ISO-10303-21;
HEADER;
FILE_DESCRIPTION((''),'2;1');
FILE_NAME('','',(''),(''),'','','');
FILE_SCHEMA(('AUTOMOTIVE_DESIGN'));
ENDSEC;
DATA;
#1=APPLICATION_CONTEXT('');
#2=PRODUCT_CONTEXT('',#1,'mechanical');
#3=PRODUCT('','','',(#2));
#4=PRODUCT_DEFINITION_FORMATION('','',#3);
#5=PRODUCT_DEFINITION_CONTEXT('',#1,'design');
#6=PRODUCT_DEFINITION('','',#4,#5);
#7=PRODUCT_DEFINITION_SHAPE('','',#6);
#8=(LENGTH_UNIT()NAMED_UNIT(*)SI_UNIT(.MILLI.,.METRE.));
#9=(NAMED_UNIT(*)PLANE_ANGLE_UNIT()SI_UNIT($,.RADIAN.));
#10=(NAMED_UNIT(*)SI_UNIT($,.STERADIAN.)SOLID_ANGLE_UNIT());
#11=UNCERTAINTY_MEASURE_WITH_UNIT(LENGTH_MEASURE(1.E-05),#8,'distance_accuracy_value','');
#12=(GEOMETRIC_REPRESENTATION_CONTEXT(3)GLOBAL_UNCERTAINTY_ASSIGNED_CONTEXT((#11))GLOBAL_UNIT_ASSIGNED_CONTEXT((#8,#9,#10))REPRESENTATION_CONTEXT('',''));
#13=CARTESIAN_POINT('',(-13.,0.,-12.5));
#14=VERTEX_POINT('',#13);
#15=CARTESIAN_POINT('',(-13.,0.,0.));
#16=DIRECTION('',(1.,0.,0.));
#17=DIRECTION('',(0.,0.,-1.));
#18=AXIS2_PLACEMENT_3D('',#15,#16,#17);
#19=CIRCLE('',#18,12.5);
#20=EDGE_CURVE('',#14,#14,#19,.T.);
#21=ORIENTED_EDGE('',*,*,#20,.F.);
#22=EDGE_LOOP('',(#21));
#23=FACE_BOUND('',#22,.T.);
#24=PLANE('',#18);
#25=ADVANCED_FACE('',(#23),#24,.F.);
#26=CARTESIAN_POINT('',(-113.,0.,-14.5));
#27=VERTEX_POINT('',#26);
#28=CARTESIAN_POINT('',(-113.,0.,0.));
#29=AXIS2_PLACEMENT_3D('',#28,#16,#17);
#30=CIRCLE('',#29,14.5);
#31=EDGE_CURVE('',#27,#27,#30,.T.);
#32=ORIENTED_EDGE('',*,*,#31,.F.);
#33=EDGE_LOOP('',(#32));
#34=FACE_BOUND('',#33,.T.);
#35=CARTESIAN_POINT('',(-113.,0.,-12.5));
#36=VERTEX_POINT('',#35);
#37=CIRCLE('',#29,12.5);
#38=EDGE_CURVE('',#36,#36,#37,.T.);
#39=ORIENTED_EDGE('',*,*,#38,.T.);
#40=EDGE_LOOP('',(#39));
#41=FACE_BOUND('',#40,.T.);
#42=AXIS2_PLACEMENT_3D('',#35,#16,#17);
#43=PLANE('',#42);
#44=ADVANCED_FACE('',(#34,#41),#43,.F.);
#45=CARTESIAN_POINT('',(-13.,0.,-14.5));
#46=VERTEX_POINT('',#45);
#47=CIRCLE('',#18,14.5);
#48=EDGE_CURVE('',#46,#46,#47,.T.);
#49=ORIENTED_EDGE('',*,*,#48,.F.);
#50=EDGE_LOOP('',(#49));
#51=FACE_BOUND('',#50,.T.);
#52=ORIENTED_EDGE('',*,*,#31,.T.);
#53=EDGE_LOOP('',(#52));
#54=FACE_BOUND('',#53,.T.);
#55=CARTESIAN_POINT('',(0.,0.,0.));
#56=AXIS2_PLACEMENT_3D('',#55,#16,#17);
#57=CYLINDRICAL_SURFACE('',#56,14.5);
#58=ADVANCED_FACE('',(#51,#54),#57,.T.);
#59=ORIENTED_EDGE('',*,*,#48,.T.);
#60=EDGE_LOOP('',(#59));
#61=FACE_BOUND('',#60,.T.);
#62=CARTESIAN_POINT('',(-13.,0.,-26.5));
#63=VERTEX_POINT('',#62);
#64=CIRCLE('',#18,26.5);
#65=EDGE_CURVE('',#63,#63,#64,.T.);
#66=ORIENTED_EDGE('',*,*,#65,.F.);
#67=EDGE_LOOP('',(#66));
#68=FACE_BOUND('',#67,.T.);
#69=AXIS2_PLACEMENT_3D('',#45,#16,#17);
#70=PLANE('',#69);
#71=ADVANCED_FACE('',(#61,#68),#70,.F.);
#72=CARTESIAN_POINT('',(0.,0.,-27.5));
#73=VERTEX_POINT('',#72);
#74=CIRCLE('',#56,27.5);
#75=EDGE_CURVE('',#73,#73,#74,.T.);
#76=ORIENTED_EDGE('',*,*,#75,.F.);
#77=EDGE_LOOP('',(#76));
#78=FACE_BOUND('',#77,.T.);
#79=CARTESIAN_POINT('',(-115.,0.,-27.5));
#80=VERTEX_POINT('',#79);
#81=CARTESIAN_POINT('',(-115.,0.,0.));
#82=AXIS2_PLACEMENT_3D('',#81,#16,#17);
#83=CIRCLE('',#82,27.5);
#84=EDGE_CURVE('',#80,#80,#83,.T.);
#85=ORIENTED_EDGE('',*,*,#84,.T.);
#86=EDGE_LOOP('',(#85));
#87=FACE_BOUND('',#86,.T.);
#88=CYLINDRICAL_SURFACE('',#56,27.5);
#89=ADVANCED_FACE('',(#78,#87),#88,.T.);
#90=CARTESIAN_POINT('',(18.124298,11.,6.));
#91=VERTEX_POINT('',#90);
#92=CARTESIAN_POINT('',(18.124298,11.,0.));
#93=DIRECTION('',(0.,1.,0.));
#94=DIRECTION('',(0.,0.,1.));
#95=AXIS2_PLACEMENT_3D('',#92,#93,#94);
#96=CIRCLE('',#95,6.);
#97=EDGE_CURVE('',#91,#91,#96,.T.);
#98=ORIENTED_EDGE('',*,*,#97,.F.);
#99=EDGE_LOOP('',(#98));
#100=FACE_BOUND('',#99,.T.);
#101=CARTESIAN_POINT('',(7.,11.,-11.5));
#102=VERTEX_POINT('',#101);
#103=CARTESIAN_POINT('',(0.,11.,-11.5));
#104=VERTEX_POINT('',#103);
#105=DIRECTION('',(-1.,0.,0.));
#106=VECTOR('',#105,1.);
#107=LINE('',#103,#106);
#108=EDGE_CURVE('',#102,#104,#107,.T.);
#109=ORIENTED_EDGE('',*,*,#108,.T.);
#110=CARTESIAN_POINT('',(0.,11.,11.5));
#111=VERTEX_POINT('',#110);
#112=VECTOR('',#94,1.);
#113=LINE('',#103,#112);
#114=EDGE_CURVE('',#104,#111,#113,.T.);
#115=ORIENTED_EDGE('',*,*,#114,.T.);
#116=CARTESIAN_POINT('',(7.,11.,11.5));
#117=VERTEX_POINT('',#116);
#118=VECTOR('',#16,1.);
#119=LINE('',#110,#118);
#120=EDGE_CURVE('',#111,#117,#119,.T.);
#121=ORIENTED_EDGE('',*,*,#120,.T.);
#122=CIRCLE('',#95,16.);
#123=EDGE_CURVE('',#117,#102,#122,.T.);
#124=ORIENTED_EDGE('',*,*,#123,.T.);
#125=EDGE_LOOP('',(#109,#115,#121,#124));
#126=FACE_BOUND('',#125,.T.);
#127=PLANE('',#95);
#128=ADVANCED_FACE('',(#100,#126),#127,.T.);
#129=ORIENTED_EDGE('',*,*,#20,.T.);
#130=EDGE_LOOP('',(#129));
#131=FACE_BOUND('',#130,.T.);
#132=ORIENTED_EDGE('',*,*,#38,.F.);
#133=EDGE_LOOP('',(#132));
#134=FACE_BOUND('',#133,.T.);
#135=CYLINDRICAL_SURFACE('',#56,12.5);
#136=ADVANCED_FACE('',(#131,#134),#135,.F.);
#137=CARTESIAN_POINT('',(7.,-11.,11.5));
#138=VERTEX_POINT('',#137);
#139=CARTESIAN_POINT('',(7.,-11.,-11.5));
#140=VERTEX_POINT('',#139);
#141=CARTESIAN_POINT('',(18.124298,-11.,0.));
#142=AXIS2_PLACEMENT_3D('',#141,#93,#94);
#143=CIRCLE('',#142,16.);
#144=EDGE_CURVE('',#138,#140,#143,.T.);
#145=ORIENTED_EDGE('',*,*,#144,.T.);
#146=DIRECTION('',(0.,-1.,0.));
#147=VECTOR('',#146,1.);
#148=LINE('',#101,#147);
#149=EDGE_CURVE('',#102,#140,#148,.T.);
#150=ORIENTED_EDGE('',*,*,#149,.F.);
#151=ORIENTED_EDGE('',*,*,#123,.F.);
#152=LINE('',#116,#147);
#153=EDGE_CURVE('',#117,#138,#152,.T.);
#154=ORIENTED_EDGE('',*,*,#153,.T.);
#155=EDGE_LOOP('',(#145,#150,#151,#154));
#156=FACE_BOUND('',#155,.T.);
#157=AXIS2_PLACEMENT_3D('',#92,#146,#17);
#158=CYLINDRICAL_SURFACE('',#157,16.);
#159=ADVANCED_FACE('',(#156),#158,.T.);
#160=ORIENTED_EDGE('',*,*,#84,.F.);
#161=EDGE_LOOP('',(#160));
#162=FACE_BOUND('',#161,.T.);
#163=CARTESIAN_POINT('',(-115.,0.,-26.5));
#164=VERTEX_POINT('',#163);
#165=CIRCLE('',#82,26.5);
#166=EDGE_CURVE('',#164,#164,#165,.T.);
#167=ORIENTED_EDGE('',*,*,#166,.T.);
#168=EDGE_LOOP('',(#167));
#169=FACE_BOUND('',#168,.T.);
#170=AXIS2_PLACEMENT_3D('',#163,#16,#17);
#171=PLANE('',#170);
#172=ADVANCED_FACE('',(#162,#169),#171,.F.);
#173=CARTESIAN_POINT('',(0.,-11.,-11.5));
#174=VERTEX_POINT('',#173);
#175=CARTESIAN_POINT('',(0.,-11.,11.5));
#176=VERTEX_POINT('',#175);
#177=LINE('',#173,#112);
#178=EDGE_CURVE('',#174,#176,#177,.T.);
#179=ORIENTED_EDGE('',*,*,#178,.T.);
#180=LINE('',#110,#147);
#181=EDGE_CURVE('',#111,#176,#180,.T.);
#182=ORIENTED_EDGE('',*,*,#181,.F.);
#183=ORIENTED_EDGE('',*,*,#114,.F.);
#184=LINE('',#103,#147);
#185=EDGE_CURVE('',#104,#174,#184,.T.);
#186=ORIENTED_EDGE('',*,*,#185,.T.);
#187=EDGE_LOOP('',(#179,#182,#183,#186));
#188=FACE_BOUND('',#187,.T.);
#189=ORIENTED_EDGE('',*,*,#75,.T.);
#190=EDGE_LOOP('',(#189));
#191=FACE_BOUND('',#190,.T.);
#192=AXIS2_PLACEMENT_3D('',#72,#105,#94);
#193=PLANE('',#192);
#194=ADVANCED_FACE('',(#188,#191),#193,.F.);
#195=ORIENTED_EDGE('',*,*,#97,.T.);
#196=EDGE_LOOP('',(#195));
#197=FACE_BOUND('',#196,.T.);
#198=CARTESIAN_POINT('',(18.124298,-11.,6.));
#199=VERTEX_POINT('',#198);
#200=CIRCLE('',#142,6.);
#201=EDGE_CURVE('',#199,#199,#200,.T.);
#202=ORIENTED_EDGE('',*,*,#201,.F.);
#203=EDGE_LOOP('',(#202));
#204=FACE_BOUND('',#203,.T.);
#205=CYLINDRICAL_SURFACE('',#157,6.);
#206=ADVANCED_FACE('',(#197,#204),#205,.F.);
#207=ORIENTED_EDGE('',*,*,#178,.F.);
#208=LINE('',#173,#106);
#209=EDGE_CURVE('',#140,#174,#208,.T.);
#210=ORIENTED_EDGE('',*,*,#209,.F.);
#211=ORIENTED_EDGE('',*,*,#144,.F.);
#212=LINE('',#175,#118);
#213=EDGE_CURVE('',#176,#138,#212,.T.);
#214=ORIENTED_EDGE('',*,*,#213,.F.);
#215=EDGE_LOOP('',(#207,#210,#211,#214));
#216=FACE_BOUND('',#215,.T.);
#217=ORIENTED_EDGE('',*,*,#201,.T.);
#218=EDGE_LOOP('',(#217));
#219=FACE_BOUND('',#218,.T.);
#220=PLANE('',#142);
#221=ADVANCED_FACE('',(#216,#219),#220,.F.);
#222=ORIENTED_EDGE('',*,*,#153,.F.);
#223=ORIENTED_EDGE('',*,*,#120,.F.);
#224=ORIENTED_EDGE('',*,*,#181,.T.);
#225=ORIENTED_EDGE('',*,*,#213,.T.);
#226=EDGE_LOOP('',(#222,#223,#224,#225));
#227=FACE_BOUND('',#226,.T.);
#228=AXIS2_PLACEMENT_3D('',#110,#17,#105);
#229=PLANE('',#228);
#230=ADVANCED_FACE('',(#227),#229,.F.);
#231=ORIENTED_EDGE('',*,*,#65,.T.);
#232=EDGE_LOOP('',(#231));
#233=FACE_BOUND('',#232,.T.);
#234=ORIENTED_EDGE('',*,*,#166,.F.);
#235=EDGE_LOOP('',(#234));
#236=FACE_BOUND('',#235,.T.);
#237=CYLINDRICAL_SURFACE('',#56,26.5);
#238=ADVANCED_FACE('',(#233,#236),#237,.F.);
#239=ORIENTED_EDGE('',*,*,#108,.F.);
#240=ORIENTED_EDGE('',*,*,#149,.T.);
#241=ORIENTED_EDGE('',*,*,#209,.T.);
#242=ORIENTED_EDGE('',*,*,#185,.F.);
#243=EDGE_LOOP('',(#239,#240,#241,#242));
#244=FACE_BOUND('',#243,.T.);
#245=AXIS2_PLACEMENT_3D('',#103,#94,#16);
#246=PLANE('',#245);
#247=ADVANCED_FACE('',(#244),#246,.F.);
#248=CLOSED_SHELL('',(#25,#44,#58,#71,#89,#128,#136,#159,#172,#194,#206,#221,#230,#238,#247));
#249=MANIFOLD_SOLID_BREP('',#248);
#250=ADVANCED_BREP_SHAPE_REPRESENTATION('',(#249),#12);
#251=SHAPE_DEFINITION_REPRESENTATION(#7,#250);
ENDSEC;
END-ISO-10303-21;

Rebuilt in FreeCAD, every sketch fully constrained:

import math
import FreeCAD as App
import Part
import Sketcher
from FreeCAD import Vector


def add_polygon(sketch, points):
    """Adds a closed chain of lines whose ends are joined by coincident constraints."""
    first, n = sketch.GeometryCount, len(points)
    for a, b in zip(points, points[1:] + points[:1]):
        sketch.addGeometry(Part.LineSegment(App.Vector(*a, 0), App.Vector(*b, 0)), False)
    for i in range(n):
        sketch.addConstraint(Sketcher.Constraint("Coincident", first + i, 2, first + (i + 1) % n, 1))

doc = App.newDocument("Part")
params = doc.addObject("Spreadsheet::Sheet", "Params")
for row, (alias, value) in enumerate([
    ("sketch1_width", "13 mm"),
    ("sketch1_width2", "115 mm"),
    ("sketch1_width3", "100 mm"),
    ("sketch1_height", "1 mm"),
    ("sketch1_height2", "12 mm"),
    ("revolution_angle", "360 deg"),
    ("sketch2_diameter", "12 mm"),
    ("sketch2_radius", "16 mm"),
    ("sketch2_width", "7 mm"),
    ("sketch2_height", "23 mm"),
    ("pad1_length", "22 mm"),
], start=1):
    params.set(f"A{row}", alias)
    params.set(f"B{row}", "=" + value)
    params.setAlias(f"B{row}", alias)

body = doc.addObject("PartDesign::Body", "Body")

sketch1 = body.newObject("Sketcher::SketchObject", "Sketch")
sketch1.AttachmentSupport = (doc.getObject("XZ_Plane"), [""])
sketch1.MapMode = "FlatFace"
add_polygon(sketch1, [(-13, 0), (0, 0), (0, -27.5), (-115, -27.5), (-115, -26.5), (-13, -26.5), (-13, -14.5), (-113, -14.5), (-113, -12.5), (-13, -12.5)])
sketch1.addConstraint([
    Sketcher.Constraint("Horizontal", 0),
    Sketcher.Constraint("Vertical", 1),
    Sketcher.Constraint("Horizontal", 2),
    Sketcher.Constraint("Vertical", 3),
    Sketcher.Constraint("Horizontal", 4),
    Sketcher.Constraint("Vertical", 5),
    Sketcher.Constraint("Horizontal", 6),
    Sketcher.Constraint("Vertical", 7),
    Sketcher.Constraint("Horizontal", 8),
    Sketcher.Constraint("Vertical", 9),
    Sketcher.Constraint("Coincident", 0, 2, -1, 1),
    Sketcher.Constraint("Vertical", 5, 2, 8, 2),
    Sketcher.Constraint("DistanceX", 0, 1, 0, 2, 13.0),
    Sketcher.Constraint("DistanceX", 2, 2, 2, 1, 115.0),
    Sketcher.Constraint("DistanceX", 6, 2, 6, 1, 100.0),
    Sketcher.Constraint("DistanceY", 3, 1, 3, 2, 1.0),
    Sketcher.Constraint("DistanceY", 5, 1, 5, 2, 12.0),
    Sketcher.Constraint("DistanceY", 7, 1, 7, 2, 2.0),
    Sketcher.Constraint("DistanceY", 1, 2, 1, 1, 27.5),
])
sketch1.setExpression("Constraints[22]", "Params.sketch1_width")
sketch1.setExpression("Constraints[23]", "Params.sketch1_width2")
sketch1.setExpression("Constraints[24]", "Params.sketch1_width3")
sketch1.setExpression("Constraints[25]", "Params.sketch1_height")
sketch1.setExpression("Constraints[26]", "Params.sketch1_height2")
revolution = body.newObject("PartDesign::Revolution", "Revolution")
revolution.Profile = sketch1
revolution.ReferenceAxis = (sketch1, ["H_Axis"])
revolution.setExpression("Angle", "Params.revolution_angle")

sketch2 = body.newObject("Sketcher::SketchObject", "Sketch001")
sketch2.AttachmentSupport = (doc.getObject("XZ_Plane"), [""])
sketch2.MapMode = "FlatFace"
sketch2.addGeometry([
    Part.LineSegment(Vector(7, -11.5, 0), Vector(0, -11.5, 0)),
    Part.LineSegment(Vector(0, -11.5, 0), Vector(0, 11.5, 0)),
    Part.LineSegment(Vector(0, 11.5, 0), Vector(7, 11.5, 0)),
    Part.ArcOfCircle(Part.Circle(Vector(18.124298, 0, 0), Vector(0, 0, 1), 16), math.radians(-134.048626), math.radians(134.048626)),
    Part.Circle(Vector(18.124298, 0, 0), Vector(0, 0, 1), 6),
], False)
sketch2.addConstraint([
    Sketcher.Constraint("Coincident", 0, 2, 1, 1),
    Sketcher.Constraint("Coincident", 1, 2, 2, 1),
    Sketcher.Constraint("Coincident", 2, 2, 3, 2),
    Sketcher.Constraint("Coincident", 3, 1, 0, 1),
    Sketcher.Constraint("Horizontal", 0),
    Sketcher.Constraint("Vertical", 1),
    Sketcher.Constraint("Horizontal", 2),
    Sketcher.Constraint("Coincident", 4, 3, 3, 3),
    Sketcher.Constraint("Symmetric", 0, 2, 1, 2, -1, 1),
    Sketcher.Constraint("PointOnObject", 3, 3, -1),
    Sketcher.Constraint("Diameter", 4, 12.0),
    Sketcher.Constraint("Radius", 3, 16.0),
    Sketcher.Constraint("DistanceX", 0, 2, 0, 1, 7.0),
    Sketcher.Constraint("DistanceY", 1, 1, 1, 2, 23.0),
])
sketch2.setExpression("Constraints[10]", "Params.sketch2_diameter")
sketch2.setExpression("Constraints[11]", "Params.sketch2_radius")
sketch2.setExpression("Constraints[12]", "Params.sketch2_width")
sketch2.setExpression("Constraints[13]", "Params.sketch2_height")
pad1 = body.newObject("PartDesign::Pad", "Pad")
pad1.Profile = sketch2
pad1.setExpression("Length", "Params.pad1_length")
pad1.Midplane = True

doc.recompute()
